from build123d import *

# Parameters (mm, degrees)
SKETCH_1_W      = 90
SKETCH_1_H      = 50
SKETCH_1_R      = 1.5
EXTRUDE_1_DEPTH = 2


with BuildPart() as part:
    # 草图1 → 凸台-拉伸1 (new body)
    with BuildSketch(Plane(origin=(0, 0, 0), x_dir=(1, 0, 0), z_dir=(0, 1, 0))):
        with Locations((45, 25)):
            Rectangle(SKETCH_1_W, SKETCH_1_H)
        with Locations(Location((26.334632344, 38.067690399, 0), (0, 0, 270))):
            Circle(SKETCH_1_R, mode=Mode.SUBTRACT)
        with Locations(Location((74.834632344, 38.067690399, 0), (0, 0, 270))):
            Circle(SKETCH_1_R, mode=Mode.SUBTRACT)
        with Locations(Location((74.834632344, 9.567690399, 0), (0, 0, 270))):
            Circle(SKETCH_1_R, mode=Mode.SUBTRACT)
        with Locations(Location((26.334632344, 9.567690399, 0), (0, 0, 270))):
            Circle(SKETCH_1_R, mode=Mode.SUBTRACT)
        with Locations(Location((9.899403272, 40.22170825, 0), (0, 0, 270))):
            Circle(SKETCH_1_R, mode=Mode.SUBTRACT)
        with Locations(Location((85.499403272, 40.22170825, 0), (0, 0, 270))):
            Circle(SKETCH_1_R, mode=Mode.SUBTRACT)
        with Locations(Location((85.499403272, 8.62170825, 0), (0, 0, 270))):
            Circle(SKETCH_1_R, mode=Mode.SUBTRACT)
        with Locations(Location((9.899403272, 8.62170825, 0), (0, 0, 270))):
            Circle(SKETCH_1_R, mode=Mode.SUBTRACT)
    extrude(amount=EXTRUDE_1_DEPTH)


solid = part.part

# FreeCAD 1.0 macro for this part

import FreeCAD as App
import Part
import Sketcher
from FreeCAD import Vector
Q = App.Units.Quantity

doc = App.newDocument("Part")
body = doc.addObject("PartDesign::Body", "Body")

sketch1 = body.newObject("Sketcher::SketchObject", "Sketch")
sketch1.AttachmentSupport = (doc.getObject("XZ_Plane"), [""])
sketch1.MapMode = "FlatFace"
sketch1.addGeometry([
    Part.LineSegment(Vector(0, -50, 0), Vector(0, 0, 0)),
    Part.LineSegment(Vector(0, 0, 0), Vector(90, 0, 0)),
    Part.LineSegment(Vector(90, 0, 0), Vector(90, -50, 0)),
    Part.LineSegment(Vector(90, -50, 0), Vector(0, -50, 0)),
    Part.Circle(Vector(9.9, -8.6, 0), Vector(0, 0, 1), 1.5),
    Part.Circle(Vector(26.3, -9.6, 0), Vector(0, 0, 1), 1.5),
    Part.Circle(Vector(74.8, -9.6, 0), Vector(0, 0, 1), 1.5),
    Part.Circle(Vector(85.5, -8.6, 0), Vector(0, 0, 1), 1.5),
    Part.Circle(Vector(9.9, -40.2, 0), Vector(0, 0, 1), 1.5),
    Part.Circle(Vector(26.3, -38.1, 0), Vector(0, 0, 1), 1.5),
    Part.Circle(Vector(74.8, -38.1, 0), Vector(0, 0, 1), 1.5),
    Part.Circle(Vector(85.5, -40.2, 0), Vector(0, 0, 1), 1.5),
], False)
sketch1.addConstraint([
    Sketcher.Constraint("Coincident", 0, 2, 1, 1),
    Sketcher.Constraint("Coincident", 1, 2, 2, 1),
    Sketcher.Constraint("Coincident", 2, 2, 3, 1),
    Sketcher.Constraint("Coincident", 3, 2, 0, 1),
    Sketcher.Constraint("Vertical", 0),
    Sketcher.Constraint("Horizontal", 1),
    Sketcher.Constraint("Vertical", 2),
    Sketcher.Constraint("Horizontal", 3),
    Sketcher.Constraint("Coincident", 0, 2, -1, 1),
    Sketcher.Constraint("Equal", 4, 5),
    Sketcher.Constraint("Equal", 5, 6),
    Sketcher.Constraint("Equal", 6, 7),
    Sketcher.Constraint("Equal", 7, 8),
    Sketcher.Constraint("Equal", 8, 9),
    Sketcher.Constraint("Equal", 9, 10),
    Sketcher.Constraint("Equal", 10, 11),
    Sketcher.Constraint("Horizontal", 5, 3, 6, 3),
    Sketcher.Constraint("Horizontal", 4, 3, 7, 3),
    Sketcher.Constraint("Horizontal", 9, 3, 10, 3),
    Sketcher.Constraint("Horizontal", 8, 3, 11, 3),
    Sketcher.Constraint("Vertical", 4, 3, 8, 3),
    Sketcher.Constraint("Vertical", 5, 3, 9, 3),
    Sketcher.Constraint("Vertical", 6, 3, 10, 3),
    Sketcher.Constraint("Vertical", 7, 3, 11, 3),
    Sketcher.Constraint("Diameter", 4, Q("3 mm")),
    Sketcher.Constraint("DistanceX", 1, 1, 1, 2, Q("90 mm")),
    Sketcher.Constraint("DistanceY", 0, 1, 0, 2, Q("50 mm")),
    Sketcher.Constraint("DistanceX", 5, 3, 6, 3, Q("48.5 mm")),
    Sketcher.Constraint("DistanceX", 4, 3, 7, 3, Q("75.6 mm")),
    Sketcher.Constraint("DistanceY", 8, 3, 4, 3, Q("31.6 mm")),
    Sketcher.Constraint("DistanceY", 9, 3, 5, 3, Q("28.5 mm")),
    Sketcher.Constraint("DistanceY", 4, 3, -1, 1, Q("8.621708 mm")),
    Sketcher.Constraint("DistanceY", 5, 3, -1, 1, Q("9.56769 mm")),
    Sketcher.Constraint("DistanceX", 4, 3, 5, 3, Q("16.435229 mm")),
    Sketcher.Constraint("DistanceX", -1, 1, 4, 3, Q("9.899403 mm")),
])
pad1 = body.newObject("PartDesign::Pad", "Pad")
pad1.Profile = sketch1
pad1.Length = 2
pad1.Reversed = True

doc.recompute()
